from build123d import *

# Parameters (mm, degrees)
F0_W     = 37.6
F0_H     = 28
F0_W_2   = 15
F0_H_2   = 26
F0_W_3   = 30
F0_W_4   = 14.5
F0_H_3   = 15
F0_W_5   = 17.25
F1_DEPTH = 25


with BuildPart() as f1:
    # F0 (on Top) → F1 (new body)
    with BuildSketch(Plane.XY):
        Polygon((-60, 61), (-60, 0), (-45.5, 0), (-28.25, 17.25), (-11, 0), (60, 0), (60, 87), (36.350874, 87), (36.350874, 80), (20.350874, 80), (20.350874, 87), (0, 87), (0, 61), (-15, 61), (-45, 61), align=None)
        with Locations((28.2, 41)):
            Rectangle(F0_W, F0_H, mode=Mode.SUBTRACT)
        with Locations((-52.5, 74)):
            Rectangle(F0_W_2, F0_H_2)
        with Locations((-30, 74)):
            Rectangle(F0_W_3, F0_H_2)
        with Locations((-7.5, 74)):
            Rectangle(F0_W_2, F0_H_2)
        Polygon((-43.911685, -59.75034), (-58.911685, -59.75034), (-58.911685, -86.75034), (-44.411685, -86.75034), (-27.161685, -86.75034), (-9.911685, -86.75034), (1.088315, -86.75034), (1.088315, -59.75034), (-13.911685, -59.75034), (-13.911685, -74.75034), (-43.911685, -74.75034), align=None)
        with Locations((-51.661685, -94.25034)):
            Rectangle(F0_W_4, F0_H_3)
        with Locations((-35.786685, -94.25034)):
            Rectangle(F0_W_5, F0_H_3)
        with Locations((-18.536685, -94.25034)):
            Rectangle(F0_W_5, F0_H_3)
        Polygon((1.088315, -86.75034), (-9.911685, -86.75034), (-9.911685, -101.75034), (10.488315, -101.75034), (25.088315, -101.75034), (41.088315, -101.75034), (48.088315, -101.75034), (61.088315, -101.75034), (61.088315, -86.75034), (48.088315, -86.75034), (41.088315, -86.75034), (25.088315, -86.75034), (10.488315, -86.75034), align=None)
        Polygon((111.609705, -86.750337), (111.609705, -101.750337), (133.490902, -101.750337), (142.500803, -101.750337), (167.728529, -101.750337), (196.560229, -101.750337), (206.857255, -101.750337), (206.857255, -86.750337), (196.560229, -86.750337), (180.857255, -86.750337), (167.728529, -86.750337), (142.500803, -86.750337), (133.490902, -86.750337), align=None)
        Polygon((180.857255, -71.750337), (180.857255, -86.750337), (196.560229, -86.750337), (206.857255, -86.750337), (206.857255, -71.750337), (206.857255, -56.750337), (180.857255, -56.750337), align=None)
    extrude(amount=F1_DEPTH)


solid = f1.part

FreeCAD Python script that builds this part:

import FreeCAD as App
import Part
import Sketcher
from FreeCAD import Vector
Q = App.Units.Quantity

doc = App.newDocument("Part")
params = doc.addObject("Spreadsheet::Sheet", "Params")
for row, (alias, value) in enumerate([
    ("sketch1_width", "71 mm"),
    ("sketch1_width2", "16 mm"),
    ("sketch1_width3", "15 mm"),
    ("sketch1_width4", "120 mm"),
    ("sketch1_width5", "60 mm"),
    ("pad1_length", "25 mm"),
], start=1):
    params.set(f"A{row}", alias)
    params.set(f"B{row}", "=" + value)
    params.setAlias(f"B{row}", alias)

body = doc.addObject("PartDesign::Body", "Body")
body.AllowCompound = True

sketch1 = body.newObject("Sketcher::SketchObject", "Sketch")
sketch1.AttachmentSupport = (doc.getObject("XY_Plane"), [""])
sketch1.MapMode = "FlatFace"
sketch1.addGeometry(Part.LineSegment(Vector(-60, 0, 0), Vector(-46, 0, 0)), False)
sketch1.addGeometry(Part.LineSegment(Vector(-46, 0, 0), Vector(-28, 17, 0)), False)
sketch1.addGeometry(Part.LineSegment(Vector(-28, 17, 0), Vector(-11, 0, 0)), False)
sketch1.addGeometry(Part.LineSegment(Vector(-11, 0, 0), Vector(60, 0, 0)), False)
sketch1.addGeometry(Part.LineSegment(Vector(60, 0, 0), Vector(60, 87, 0)), False)
sketch1.addGeometry(Part.LineSegment(Vector(60, 87, 0), Vector(36, 87, 0)), False)
sketch1.addGeometry(Part.LineSegment(Vector(36, 87, 0), Vector(36, 80, 0)), False)
sketch1.addGeometry(Part.LineSegment(Vector(36, 80, 0), Vector(20, 80, 0)), False)
sketch1.addGeometry(Part.LineSegment(Vector(20, 80, 0), Vector(20, 87, 0)), False)
sketch1.addGeometry(Part.LineSegment(Vector(20, 87, 0), Vector(-60, 87, 0)), False)
sketch1.addGeometry(Part.LineSegment(Vector(-60, 87, 0), Vector(-60, 0, 0)), False)
sketch1.addGeometry(Part.LineSegment(Vector(47, 27, 0), Vector(9, 27, 0)), False)
sketch1.addGeometry(Part.LineSegment(Vector(9, 27, 0), Vector(9, 55, 0)), False)
sketch1.addGeometry(Part.LineSegment(Vector(9, 55, 0), Vector(47, 55, 0)), False)
sketch1.addGeometry(Part.LineSegment(Vector(47, 55, 0), Vector(47, 27, 0)), False)
sketch1.addGeometry(Part.LineSegment(Vector(-44, -60, 0), Vector(-59, -60, 0)), False)
sketch1.addGeometry(Part.LineSegment(Vector(-59, -60, 0), Vector(-59, -102, 0)), False)
sketch1.addGeometry(Part.LineSegment(Vector(-59, -102, 0), Vector(61, -102, 0)), False)
sketch1.addGeometry(Part.LineSegment(Vector(61, -102, 0), Vector(61, -87, 0)), False)
sketch1.addGeometry(Part.LineSegment(Vector(61, -87, 0), Vector(1, -87, 0)), False)
sketch1.addGeometry(Part.LineSegment(Vector(1, -87, 0), Vector(1, -60, 0)), False)
sketch1.addGeometry(Part.LineSegment(Vector(1, -60, 0), Vector(-14, -60, 0)), False)
sketch1.addGeometry(Part.LineSegment(Vector(-14, -60, 0), Vector(-14, -75, 0)), False)
sketch1.addGeometry(Part.LineSegment(Vector(-14, -75, 0), Vector(-44, -75, 0)), False)
sketch1.addGeometry(Part.LineSegment(Vector(-44, -75, 0), Vector(-44, -60, 0)), False)
sketch1.addGeometry(Part.LineSegment(Vector(112, -87, 0), Vector(112, -102, 0)), False)
sketch1.addGeometry(Part.LineSegment(Vector(112, -102, 0), Vector(207, -102, 0)), False)
sketch1.addGeometry(Part.LineSegment(Vector(207, -102, 0), Vector(207, -57, 0)), False)
sketch1.addGeometry(Part.LineSegment(Vector(207, -57, 0), Vector(181, -57, 0)), False)
sketch1.addGeometry(Part.LineSegment(Vector(181, -57, 0), Vector(181, -87, 0)), False)
sketch1.addGeometry(Part.LineSegment(Vector(181, -87, 0), Vector(112, -87, 0)), False)
sketch1.addConstraint(Sketcher.Constraint("Coincident", 0, 2, 1, 1))
sketch1.addConstraint(Sketcher.Constraint("Coincident", 1, 2, 2, 1))
sketch1.addConstraint(Sketcher.Constraint("Coincident", 2, 2, 3, 1))
sketch1.addConstraint(Sketcher.Constraint("Coincident", 3, 2, 4, 1))
sketch1.addConstraint(Sketcher.Constraint("Coincident", 4, 2, 5, 1))
sketch1.addConstraint(Sketcher.Constraint("Coincident", 5, 2, 6, 1))
sketch1.addConstraint(Sketcher.Constraint("Coincident", 6, 2, 7, 1))
sketch1.addConstraint(Sketcher.Constraint("Coincident", 7, 2, 8, 1))
sketch1.addConstraint(Sketcher.Constraint("Coincident", 8, 2, 9, 1))
sketch1.addConstraint(Sketcher.Constraint("Coincident", 9, 2, 10, 1))
sketch1.addConstraint(Sketcher.Constraint("Coincident", 10, 2, 0, 1))
sketch1.addConstraint(Sketcher.Constraint("Coincident", 11, 2, 12, 1))
sketch1.addConstraint(Sketcher.Constraint("Coincident", 12, 2, 13, 1))
sketch1.addConstraint(Sketcher.Constraint("Coincident", 13, 2, 14, 1))
sketch1.addConstraint(Sketcher.Constraint("Coincident", 14, 2, 11, 1))
sketch1.addConstraint(Sketcher.Constraint("Coincident", 15, 2, 16, 1))
sketch1.addConstraint(Sketcher.Constraint("Coincident", 16, 2, 17, 1))
sketch1.addConstraint(Sketcher.Constraint("Coincident", 17, 2, 18, 1))
sketch1.addConstraint(Sketcher.Constraint("Coincident", 18, 2, 19, 1))
sketch1.addConstraint(Sketcher.Constraint("Coincident", 19, 2, 20, 1))
sketch1.addConstraint(Sketcher.Constraint("Coincident", 20, 2, 21, 1))
sketch1.addConstraint(Sketcher.Constraint("Coincident", 21, 2, 22, 1))
sketch1.addConstraint(Sketcher.Constraint("Coincident", 22, 2, 23, 1))
sketch1.addConstraint(Sketcher.Constraint("Coincident", 23, 2, 24, 1))
sketch1.addConstraint(Sketcher.Constraint("Coincident", 24, 2, 15, 1))
sketch1.addConstraint(Sketcher.Constraint("Coincident", 25, 2, 26, 1))
sketch1.addConstraint(Sketcher.Constraint("Coincident", 26, 2, 27, 1))
sketch1.addConstraint(Sketcher.Constraint("Coincident", 27, 2, 28, 1))
sketch1.addConstraint(Sketcher.Constraint("Coincident", 28, 2, 29, 1))
sketch1.addConstraint(Sketcher.Constraint("Coincident", 29, 2, 30, 1))
sketch1.addConstraint(Sketcher.Constraint("Coincident", 30, 2, 25, 1))
sketch1.addConstraint(Sketcher.Constraint("Horizontal", 0))
sketch1.addConstraint(Sketcher.Constraint("Horizontal", 3))
sketch1.addConstraint(Sketcher.Constraint("Vertical", 4))
sketch1.addConstraint(Sketcher.Constraint("Horizontal", 5))
sketch1.addConstraint(Sketcher.Constraint("Vertical", 6))
sketch1.addConstraint(Sketcher.Constraint("Horizontal", 7))
sketch1.addConstraint(Sketcher.Constraint("Vertical", 8))
sketch1.addConstraint(Sketcher.Constraint("Horizontal", 9))
sketch1.addConstraint(Sketcher.Constraint("Vertical", 10))
sketch1.addConstraint(Sketcher.Constraint("Horizontal", 11))
sketch1.addConstraint(Sketcher.Constraint("Vertical", 12))
sketch1.addConstraint(Sketcher.Constraint("Horizontal", 13))
sketch1.addConstraint(Sketcher.Constraint("Vertical", 14))
sketch1.addConstraint(Sketcher.Constraint("Horizontal", 15))
sketch1.addConstraint(Sketcher.Constraint("Vertical", 16))
sketch1.addConstraint(Sketcher.Constraint("Horizontal", 17))
sketch1.addConstraint(Sketcher.Constraint("Vertical", 18))
sketch1.addConstraint(Sketcher.Constraint("Horizontal", 19))
sketch1.addConstraint(Sketcher.Constraint("Vertical", 20))
sketch1.addConstraint(Sketcher.Constraint("Horizontal", 21))
sketch1.addConstraint(Sketcher.Constraint("Vertical", 22))
sketch1.addConstraint(Sketcher.Constraint("Horizontal", 23))
sketch1.addConstraint(Sketcher.Constraint("Vertical", 24))
sketch1.addConstraint(Sketcher.Constraint("Vertical", 25))
sketch1.addConstraint(Sketcher.Constraint("Horizontal", 26))
sketch1.addConstraint(Sketcher.Constraint("Vertical", 27))
sketch1.addConstraint(Sketcher.Constraint("Horizontal", 28))
sketch1.addConstraint(Sketcher.Constraint("Vertical", 29))
sketch1.addConstraint(Sketcher.Constraint("Horizontal", 30))
sketch1.addConstraint(Sketcher.Constraint("Symmetric", 3, 2, 10, 2, -1, 1))
sketch1.addConstraint(Sketcher.Constraint("PointOnObject", 0, 2, -1))
sketch1.addConstraint(Sketcher.Constraint("Perpendicular", 1, 2))
sketch1.addConstraint(Sketcher.Constraint("Horizontal", 5, 2, 8, 2))
sketch1.addConstraint(Sketcher.Constraint("Horizontal", 15, 2, 20, 2))
sketch1.addConstraint(Sketcher.Constraint("Equal", 15, 21))
sketch1.addConstraint(Sketcher.Constraint("Equal", 21, 18))
sketch1.addConstraint(Sketcher.Constraint("Equal", 18, 22))
sketch1.addConstraint(Sketcher.Constraint("Equal", 24, 25))
sketch1.addConstraint(Sketcher.Constraint("Equal", 23, 29))
sketch1.addConstraint(Sketcher.Constraint("Equal", 1, 2))
sketch1.addConstraint(Sketcher.Constraint("DistanceX", 3, 1, 3, 2, Q("71 mm")))
sketch1.addConstraint(Sketcher.Constraint("DistanceX", 7, 2, 7, 1, Q("16 mm")))
sketch1.addConstraint(Sketcher.Constraint("DistanceX", 15, 2, 15, 1, Q("15 mm")))
sketch1.addConstraint(Sketcher.Constraint("DistanceX", 17, 1, 17, 2, Q("120 mm")))
sketch1.addConstraint(Sketcher.Constraint("DistanceX", 19, 2, 19, 1, Q("60 mm")))
sketch1.addConstraint(Sketcher.Constraint("DistanceX", 28, 2, 28, 1, Q("26 mm")))
sketch1.addConstraint(Sketcher.Constraint("DistanceY", 4, 1, 4, 2, Q("87 mm")))
sketch1.addConstraint(Sketcher.Constraint("DistanceY", 6, 2, 6, 1, Q("7 mm")))
sketch1.addConstraint(Sketcher.Constraint("DistanceY", 12, 1, 12, 2, Q("28 mm")))
sketch1.addConstraint(Sketcher.Constraint("DistanceY", 16, 2, 16, 1, Q("42 mm")))
sketch1.addConstraint(Sketcher.Constraint("DistanceX", 0, 1, 0, 2, Q("14.5 mm")))
sketch1.addConstraint(Sketcher.Constraint("DistanceX", 11, 2, 11, 1, Q("37.6 mm")))
sketch1.addConstraint(Sketcher.Constraint("DistanceX", 2, 2, -1, 1, Q("11 mm")))
sketch1.addConstraint(Sketcher.Constraint("DistanceY", -1, 1, 11, 2, Q("27 mm")))
sketch1.addConstraint(Sketcher.Constraint("DistanceX", -1, 1, 13, 2, Q("47 mm")))
sketch1.addConstraint(Sketcher.Constraint("DistanceX", 26, 1, 26, 2, Q("95.24755 mm")))
sketch1.addConstraint(Sketcher.Constraint("DistanceX", 5, 2, 5, 1, Q("23.649126 mm")))
sketch1.addConstraint(Sketcher.Constraint("DistanceY", 15, 2, -1, 1, Q("59.75034 mm")))
sketch1.addConstraint(Sketcher.Constraint("DistanceX", 17, 2, 25, 2, Q("50.52139 mm")))
sketch1.addConstraint(Sketcher.Constraint("DistanceX", 15, 2, -1, 1, Q("58.911685 mm")))
sketch1.addConstraint(Sketcher.Constraint("DistanceY", 25, 2, -1, 1, Q("101.750337 mm")))
sketch1.setExpression("Constraints[71]", "Params.sketch1_width")
sketch1.setExpression("Constraints[72]", "Params.sketch1_width2")
sketch1.setExpression("Constraints[73]", "Params.sketch1_width3")
sketch1.setExpression("Constraints[74]", "Params.sketch1_width4")
sketch1.setExpression("Constraints[75]", "Params.sketch1_width5")
pad1 = body.newObject("PartDesign::Pad", "Pad")
pad1.Profile = sketch1
pad1.setExpression("Length", "Params.pad1_length")

doc.recompute()
